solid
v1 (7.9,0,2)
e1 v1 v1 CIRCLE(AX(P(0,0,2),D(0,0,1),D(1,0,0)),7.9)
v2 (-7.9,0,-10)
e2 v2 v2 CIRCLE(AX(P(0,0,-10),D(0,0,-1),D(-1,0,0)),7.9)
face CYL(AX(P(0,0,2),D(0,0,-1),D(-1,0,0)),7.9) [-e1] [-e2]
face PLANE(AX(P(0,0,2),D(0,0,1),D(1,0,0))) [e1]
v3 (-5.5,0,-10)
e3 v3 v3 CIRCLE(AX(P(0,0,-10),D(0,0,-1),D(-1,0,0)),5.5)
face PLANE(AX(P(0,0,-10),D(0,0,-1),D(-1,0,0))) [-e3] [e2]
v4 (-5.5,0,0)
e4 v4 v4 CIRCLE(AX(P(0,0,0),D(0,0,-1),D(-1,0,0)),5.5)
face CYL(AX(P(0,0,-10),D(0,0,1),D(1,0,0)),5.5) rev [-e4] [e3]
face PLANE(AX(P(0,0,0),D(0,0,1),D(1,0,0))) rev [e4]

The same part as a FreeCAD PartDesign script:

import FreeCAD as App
import Part
import Sketcher

V = App.Vector

doc = App.newDocument("Part")
params = doc.addObject("Spreadsheet::Sheet", "Params")
for row, (alias, value) in enumerate([
    ("sketch1_diameter", "15.8 mm"),
    ("pad1_length", "2 mm"),
    ("sketch2_diameter", "11 mm"),
    ("sketch2_diameter2", "15.8 mm"),
    ("pad2_length", "10 mm"),
], start=1):
    params.set(f"A{row}", alias)
    params.set(f"B{row}", "=" + value)
    params.setAlias(f"B{row}", alias)

body = doc.addObject("PartDesign::Body", "Body")

# Sketch on XY plane
sketch1 = body.newObject("Sketcher::SketchObject", "Sketch")
sketch1.AttachmentSupport = (doc.getObject("XY_Plane"), [""])
sketch1.MapMode = "FlatFace"
sketch1.addGeometry(Part.Circle(V(0, 0, 0), V(0, 0, 1), 8), False)
sketch1.addConstraint([
    Sketcher.Constraint("Coincident", 0, 3, -1, 1),
    Sketcher.Constraint("Diameter", 0, 15.8),
])
sketch1.setExpression("Constraints[1]", "Params.sketch1_diameter")
pad1 = body.newObject("PartDesign::Pad", "Pad")
pad1.Profile = sketch1
pad1.setExpression("Length", "Params.pad1_length")

# Sketch on XY plane
sketch2 = body.newObject("Sketcher::SketchObject", "Sketch001")
sketch2.AttachmentSupport = (doc.getObject("XY_Plane"), [""])
sketch2.MapMode = "FlatFace"
sketch2.addGeometry([
    Part.Circle(V(0, 0, 0), V(0, 0, 1), 8),
    Part.Circle(V(0, 0, 0), V(0, 0, 1), 6),
], False)
sketch2.addConstraint([
    Sketcher.Constraint("Coincident", 0, 3, -1, 1),
    Sketcher.Constraint("Coincident", 1, 3, -1, 1),
    Sketcher.Constraint("Diameter", 1, 11.0),
    Sketcher.Constraint("Diameter", 0, 15.8),
])
sketch2.setExpression("Constraints[2]", "Params.sketch2_diameter")
sketch2.setExpression("Constraints[3]", "Params.sketch2_diameter2")
pad2 = body.newObject("PartDesign::Pad", "Pad001")
pad2.Profile = sketch2
pad2.setExpression("Length", "Params.pad2_length")
pad2.Reversed = True

doc.recompute()
